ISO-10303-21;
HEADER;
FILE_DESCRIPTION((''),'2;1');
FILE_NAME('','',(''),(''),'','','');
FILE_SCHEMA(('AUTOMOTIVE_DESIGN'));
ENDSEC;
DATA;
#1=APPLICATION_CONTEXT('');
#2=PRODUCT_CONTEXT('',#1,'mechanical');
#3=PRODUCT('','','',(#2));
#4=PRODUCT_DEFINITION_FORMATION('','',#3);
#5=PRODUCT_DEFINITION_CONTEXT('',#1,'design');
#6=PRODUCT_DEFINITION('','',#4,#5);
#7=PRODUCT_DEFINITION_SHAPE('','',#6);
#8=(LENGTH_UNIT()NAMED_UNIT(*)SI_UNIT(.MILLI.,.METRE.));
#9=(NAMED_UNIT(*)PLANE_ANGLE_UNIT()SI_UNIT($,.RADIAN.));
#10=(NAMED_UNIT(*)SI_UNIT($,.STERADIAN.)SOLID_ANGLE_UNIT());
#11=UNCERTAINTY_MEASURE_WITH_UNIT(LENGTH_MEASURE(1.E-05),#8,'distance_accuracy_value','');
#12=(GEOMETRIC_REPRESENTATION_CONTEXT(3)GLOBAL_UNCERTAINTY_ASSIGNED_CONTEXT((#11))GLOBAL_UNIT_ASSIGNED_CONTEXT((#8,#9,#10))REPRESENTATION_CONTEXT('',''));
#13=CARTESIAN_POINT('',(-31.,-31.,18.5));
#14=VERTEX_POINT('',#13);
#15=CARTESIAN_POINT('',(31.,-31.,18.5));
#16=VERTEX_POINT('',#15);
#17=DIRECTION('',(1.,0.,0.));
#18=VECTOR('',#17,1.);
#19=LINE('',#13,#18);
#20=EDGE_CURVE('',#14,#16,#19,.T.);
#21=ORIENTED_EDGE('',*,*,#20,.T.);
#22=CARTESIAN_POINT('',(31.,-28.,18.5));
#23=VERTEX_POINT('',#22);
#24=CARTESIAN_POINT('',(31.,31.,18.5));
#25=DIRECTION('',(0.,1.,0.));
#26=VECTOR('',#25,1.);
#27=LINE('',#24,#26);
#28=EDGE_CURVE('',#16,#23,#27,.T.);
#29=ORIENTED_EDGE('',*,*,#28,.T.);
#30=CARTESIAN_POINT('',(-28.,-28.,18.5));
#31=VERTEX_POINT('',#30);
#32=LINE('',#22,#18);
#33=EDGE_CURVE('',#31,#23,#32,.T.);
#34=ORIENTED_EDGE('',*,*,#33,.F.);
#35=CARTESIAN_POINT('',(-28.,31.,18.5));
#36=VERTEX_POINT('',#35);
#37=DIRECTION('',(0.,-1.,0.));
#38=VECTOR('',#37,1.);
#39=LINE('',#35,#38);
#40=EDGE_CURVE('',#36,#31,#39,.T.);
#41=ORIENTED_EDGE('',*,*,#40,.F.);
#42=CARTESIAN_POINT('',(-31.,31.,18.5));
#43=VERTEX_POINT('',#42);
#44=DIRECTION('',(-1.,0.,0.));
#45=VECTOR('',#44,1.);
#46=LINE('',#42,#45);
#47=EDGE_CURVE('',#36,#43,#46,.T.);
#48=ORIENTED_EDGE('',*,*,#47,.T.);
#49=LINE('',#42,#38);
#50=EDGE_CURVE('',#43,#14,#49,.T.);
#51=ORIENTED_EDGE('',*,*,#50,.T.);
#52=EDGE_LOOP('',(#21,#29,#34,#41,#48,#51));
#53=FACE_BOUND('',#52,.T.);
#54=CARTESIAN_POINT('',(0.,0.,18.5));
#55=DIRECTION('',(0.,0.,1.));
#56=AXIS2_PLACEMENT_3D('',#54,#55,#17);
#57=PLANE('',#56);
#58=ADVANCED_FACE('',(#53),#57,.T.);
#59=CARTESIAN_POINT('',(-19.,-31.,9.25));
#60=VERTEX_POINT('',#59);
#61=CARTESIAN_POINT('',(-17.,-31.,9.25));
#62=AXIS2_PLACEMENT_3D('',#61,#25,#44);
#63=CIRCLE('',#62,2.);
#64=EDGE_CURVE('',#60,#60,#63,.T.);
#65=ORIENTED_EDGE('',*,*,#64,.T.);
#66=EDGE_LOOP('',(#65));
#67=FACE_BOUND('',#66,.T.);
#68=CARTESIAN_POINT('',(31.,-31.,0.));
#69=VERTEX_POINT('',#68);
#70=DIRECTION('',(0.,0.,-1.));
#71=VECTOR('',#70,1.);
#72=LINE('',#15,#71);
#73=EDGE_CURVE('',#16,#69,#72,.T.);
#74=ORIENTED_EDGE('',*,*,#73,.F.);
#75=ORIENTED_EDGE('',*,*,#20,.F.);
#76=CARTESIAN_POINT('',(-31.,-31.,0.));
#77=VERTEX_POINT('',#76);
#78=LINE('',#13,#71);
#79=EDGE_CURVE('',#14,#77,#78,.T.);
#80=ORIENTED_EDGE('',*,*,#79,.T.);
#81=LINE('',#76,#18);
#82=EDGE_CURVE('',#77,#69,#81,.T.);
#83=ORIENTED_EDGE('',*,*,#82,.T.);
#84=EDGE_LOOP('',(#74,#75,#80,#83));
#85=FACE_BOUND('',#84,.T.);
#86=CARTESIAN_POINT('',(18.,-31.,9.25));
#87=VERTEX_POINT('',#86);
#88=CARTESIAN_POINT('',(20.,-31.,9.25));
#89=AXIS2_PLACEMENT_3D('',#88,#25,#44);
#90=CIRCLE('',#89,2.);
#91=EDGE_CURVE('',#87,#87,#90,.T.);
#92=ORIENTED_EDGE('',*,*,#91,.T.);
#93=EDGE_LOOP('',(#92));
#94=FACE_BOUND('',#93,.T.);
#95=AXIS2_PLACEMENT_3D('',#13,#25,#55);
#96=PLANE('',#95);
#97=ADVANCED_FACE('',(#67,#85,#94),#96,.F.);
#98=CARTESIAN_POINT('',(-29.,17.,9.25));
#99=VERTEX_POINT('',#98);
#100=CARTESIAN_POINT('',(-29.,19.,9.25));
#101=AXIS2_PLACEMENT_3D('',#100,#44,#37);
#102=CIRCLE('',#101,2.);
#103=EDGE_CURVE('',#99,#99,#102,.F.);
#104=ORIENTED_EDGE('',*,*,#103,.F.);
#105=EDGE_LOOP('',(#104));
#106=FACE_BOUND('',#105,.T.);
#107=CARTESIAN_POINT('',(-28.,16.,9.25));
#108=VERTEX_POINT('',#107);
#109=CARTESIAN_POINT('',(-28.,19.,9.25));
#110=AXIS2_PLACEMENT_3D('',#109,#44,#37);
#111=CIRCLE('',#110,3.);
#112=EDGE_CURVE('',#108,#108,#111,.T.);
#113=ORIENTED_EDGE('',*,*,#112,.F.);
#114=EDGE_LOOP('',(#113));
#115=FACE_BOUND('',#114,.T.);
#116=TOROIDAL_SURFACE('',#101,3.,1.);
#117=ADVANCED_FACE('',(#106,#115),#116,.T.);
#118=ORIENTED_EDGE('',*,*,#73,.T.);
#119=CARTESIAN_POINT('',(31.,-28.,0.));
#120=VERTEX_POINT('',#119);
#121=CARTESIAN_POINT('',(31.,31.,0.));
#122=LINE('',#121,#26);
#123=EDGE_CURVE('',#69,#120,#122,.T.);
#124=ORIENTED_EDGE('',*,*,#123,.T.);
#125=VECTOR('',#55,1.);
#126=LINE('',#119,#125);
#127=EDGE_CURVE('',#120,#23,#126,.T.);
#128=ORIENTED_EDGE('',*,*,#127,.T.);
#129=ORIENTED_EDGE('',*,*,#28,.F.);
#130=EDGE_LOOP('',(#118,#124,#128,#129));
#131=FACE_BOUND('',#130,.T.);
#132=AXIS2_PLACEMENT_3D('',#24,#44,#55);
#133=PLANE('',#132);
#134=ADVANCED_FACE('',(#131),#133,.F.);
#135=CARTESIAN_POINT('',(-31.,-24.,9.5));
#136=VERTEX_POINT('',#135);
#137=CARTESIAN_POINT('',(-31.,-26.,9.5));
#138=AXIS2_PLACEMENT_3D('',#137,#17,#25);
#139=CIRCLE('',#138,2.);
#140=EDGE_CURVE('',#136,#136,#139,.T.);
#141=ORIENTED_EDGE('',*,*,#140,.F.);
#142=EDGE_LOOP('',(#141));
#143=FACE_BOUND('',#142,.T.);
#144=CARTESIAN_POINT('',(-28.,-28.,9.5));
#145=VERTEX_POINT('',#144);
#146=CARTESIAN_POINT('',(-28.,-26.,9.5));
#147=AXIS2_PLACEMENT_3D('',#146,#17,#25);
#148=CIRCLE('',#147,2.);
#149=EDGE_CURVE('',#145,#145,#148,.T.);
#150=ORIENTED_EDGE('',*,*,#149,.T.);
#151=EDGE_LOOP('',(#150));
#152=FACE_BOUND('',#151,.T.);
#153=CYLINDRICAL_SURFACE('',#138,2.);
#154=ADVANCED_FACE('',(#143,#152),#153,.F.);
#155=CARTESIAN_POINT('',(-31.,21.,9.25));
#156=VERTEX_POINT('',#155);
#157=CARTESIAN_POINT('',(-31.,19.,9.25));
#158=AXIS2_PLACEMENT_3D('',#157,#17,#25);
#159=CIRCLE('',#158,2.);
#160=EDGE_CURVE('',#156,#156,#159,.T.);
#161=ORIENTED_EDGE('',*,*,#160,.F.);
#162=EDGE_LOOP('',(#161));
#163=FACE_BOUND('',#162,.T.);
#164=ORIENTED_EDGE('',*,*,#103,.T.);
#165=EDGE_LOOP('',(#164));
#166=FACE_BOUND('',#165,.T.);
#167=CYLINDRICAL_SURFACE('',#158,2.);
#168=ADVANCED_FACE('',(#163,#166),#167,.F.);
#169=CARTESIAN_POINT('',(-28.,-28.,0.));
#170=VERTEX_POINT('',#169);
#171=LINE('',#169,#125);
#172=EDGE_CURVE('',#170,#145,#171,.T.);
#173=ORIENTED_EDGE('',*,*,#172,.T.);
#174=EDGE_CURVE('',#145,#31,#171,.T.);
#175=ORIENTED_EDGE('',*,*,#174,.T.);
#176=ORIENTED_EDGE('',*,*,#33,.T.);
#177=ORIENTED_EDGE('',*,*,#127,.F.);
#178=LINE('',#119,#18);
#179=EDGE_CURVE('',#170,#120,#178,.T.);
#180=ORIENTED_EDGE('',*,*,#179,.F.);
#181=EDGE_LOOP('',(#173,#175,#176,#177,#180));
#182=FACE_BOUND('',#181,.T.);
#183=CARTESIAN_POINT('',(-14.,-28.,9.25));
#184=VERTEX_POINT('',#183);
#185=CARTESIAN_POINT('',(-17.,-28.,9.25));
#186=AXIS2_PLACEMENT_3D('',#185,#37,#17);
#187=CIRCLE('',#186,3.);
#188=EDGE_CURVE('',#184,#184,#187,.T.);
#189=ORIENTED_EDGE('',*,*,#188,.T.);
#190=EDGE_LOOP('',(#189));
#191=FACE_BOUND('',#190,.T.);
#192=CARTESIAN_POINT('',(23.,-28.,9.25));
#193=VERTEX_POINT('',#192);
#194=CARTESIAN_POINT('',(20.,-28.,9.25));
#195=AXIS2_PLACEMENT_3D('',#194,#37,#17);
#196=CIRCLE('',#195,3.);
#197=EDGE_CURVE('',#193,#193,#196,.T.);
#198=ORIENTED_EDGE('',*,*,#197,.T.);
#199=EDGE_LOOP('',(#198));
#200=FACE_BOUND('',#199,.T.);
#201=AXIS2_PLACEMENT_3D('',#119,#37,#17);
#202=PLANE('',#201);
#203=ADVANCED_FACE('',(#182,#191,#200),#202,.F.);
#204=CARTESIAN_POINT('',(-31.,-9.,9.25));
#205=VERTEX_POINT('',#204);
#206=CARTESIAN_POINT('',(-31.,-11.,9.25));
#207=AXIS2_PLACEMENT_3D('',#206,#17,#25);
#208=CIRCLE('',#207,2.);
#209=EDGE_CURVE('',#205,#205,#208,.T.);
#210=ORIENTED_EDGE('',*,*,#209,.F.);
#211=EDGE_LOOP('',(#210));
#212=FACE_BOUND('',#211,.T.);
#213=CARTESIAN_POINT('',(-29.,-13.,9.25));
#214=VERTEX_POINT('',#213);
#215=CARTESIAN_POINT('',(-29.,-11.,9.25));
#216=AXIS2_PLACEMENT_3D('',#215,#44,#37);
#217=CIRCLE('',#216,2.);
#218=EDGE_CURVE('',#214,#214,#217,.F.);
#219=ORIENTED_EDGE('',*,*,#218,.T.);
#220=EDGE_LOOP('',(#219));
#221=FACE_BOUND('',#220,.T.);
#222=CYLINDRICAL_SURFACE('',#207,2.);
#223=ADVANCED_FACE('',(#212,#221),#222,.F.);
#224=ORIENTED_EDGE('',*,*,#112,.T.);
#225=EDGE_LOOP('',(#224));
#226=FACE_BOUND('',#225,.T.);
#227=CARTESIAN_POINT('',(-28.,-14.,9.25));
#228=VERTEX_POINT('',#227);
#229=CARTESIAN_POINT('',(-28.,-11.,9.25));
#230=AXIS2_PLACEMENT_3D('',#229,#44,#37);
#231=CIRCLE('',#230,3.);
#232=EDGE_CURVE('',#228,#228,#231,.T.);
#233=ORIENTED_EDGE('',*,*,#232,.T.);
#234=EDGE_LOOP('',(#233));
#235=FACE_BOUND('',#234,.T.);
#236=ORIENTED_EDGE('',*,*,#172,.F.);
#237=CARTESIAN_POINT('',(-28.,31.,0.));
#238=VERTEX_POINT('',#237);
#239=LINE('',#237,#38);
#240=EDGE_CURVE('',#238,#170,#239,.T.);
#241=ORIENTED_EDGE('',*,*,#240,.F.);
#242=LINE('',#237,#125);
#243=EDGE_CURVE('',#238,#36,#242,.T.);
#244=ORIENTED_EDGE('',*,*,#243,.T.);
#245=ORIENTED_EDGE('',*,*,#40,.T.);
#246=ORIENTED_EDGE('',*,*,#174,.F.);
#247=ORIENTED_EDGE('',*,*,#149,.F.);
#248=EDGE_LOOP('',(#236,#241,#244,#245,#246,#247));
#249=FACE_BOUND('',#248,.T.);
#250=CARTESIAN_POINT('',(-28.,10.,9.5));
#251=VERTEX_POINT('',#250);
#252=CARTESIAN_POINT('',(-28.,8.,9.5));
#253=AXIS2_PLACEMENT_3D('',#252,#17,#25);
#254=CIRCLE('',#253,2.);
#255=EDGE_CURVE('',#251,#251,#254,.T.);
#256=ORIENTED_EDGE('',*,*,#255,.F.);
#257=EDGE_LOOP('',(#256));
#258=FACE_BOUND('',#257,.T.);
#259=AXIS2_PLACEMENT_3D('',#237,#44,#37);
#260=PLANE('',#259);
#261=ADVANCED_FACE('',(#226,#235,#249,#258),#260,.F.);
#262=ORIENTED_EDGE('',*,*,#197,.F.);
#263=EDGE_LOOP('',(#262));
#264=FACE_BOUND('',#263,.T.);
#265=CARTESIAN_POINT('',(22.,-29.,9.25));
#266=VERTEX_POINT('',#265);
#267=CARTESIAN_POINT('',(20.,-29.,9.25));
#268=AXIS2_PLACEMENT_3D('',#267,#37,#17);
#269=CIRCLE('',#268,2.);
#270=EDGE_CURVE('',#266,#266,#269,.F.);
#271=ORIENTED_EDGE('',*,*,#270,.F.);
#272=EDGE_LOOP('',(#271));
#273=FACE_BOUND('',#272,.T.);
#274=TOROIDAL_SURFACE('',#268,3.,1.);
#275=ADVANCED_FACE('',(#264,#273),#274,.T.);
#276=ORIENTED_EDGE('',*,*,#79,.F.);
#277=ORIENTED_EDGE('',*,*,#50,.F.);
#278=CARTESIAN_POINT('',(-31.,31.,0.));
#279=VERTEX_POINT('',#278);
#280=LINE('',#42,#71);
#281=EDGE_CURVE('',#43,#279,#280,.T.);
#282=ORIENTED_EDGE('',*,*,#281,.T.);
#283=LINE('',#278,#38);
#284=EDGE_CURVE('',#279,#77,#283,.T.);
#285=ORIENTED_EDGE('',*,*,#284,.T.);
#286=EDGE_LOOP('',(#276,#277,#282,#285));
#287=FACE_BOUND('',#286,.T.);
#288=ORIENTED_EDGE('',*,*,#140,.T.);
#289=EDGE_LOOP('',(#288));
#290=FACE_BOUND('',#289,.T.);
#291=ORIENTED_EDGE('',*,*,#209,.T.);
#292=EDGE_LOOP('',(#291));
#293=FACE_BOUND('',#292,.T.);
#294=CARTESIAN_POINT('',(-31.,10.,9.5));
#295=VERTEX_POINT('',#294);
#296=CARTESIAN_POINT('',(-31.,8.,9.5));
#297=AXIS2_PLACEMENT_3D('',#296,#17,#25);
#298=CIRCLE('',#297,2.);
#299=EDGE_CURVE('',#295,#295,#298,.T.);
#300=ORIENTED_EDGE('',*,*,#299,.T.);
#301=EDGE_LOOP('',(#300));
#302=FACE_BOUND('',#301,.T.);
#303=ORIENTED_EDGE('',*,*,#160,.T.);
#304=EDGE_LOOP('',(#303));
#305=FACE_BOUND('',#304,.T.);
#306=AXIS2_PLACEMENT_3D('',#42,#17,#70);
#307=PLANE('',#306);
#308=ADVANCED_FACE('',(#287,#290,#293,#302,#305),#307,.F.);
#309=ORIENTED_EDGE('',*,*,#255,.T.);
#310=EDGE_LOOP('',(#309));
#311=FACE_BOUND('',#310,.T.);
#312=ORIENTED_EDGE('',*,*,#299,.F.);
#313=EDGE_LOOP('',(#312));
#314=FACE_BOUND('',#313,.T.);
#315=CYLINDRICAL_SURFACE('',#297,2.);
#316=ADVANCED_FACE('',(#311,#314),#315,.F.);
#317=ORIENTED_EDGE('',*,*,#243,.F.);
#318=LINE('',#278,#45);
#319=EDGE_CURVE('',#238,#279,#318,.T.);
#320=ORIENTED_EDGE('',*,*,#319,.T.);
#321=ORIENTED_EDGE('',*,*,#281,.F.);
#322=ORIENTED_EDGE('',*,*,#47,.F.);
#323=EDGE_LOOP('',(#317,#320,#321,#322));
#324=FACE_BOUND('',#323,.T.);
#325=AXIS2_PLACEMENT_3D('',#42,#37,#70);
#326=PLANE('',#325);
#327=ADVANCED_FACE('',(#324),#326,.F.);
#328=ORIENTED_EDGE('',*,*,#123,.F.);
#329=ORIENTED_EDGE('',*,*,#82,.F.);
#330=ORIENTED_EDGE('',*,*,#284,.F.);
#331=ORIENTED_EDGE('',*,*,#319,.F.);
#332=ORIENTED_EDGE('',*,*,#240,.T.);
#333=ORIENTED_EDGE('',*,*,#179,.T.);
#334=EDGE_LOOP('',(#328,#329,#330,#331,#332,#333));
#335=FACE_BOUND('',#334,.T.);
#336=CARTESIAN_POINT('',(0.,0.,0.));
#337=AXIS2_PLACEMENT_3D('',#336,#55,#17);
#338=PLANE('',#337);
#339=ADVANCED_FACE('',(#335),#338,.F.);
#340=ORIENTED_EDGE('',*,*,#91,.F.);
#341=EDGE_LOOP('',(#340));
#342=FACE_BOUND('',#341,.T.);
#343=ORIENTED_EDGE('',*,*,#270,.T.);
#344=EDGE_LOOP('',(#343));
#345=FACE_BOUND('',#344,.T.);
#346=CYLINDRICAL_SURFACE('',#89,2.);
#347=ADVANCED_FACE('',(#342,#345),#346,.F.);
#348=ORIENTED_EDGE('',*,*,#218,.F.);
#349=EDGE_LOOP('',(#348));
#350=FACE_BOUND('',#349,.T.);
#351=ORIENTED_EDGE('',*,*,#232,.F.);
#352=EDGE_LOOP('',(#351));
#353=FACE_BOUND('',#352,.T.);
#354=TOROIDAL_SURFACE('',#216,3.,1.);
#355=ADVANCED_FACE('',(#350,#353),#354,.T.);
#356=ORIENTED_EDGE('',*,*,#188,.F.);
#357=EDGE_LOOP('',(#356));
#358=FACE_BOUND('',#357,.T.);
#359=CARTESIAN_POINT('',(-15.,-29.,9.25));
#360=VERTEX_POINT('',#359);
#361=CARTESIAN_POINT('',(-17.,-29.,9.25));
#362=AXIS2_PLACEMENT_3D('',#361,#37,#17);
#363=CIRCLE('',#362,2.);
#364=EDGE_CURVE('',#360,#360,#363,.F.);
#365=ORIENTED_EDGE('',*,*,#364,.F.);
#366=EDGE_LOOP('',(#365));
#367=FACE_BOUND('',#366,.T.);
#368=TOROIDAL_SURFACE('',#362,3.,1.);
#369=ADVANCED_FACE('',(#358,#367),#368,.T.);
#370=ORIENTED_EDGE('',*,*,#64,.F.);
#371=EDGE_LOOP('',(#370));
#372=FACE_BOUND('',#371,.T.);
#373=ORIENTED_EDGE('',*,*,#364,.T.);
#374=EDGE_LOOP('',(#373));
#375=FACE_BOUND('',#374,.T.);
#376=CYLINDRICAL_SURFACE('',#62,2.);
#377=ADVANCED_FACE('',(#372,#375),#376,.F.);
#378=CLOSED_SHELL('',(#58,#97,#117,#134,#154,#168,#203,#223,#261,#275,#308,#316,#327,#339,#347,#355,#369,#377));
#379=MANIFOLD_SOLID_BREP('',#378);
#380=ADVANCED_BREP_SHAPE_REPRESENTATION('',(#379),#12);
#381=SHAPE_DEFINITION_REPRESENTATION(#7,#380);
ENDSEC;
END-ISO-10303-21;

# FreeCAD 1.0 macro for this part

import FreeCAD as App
import Part
import Sketcher

V = App.Vector


def edges_at(feature, points):
    """Names of the edges that pass closest to the given points."""
    edges = feature.Shape.Edges
    near = lambda p: min(range(len(edges)), key=lambda i: edges[i].distToShape(Part.Vertex(*p))[0])
    return sorted({f"Edge{near(p) + 1}" for p in points})

doc = App.newDocument("Part")
body = doc.addObject("PartDesign::Body", "Body")

sketch1 = doc.addObject("Sketcher::SketchObject", "Sketch")
body.addObject(sketch1)
sketch1.AttachmentSupport = (doc.XY_Plane, [""])
sketch1.MapMode = "FlatFace"
sketch1.addGeometry([
    Part.LineSegment(V(-31, 31, 0), V(-31, -31, 0)),
    Part.LineSegment(V(-31, -31, 0), V(31, -31, 0)),
    Part.LineSegment(V(31, -31, 0), V(31, 31, 0)),
    Part.LineSegment(V(31, 31, 0), V(-31, 31, 0)),
], False)
sketch1.addConstraint([
    Sketcher.Constraint("Coincident", 0, 2, 1, 1),
    Sketcher.Constraint("Coincident", 1, 2, 2, 1),
    Sketcher.Constraint("Coincident", 2, 2, 3, 1),
    Sketcher.Constraint("Coincident", 3, 2, 0, 1),
    Sketcher.Constraint("Vertical", 0),
    Sketcher.Constraint("Horizontal", 1),
    Sketcher.Constraint("Vertical", 2),
    Sketcher.Constraint("Horizontal", 3),
    Sketcher.Constraint("Symmetric", 0, 2, 2, 2, -1, 1),
    Sketcher.Constraint("Equal", 3, 0),
    Sketcher.Constraint("DistanceX", 1, 1, 1, 2, 62.0),
])
pad1 = doc.addObject("PartDesign::Pad", "Pad")
body.addObject(pad1)
pad1.Profile = sketch1
pad1.Length = 18.5

sketch2 = doc.addObject("Sketcher::SketchObject", "Sketch001")
body.addObject(sketch2)
sketch2.AttachmentSupport = (doc.XY_Plane, [""])
sketch2.MapMode = "FlatFace"
sketch2.AttachmentOffset = App.Placement(V(0, 0, 18.5), App.Rotation())
sketch2.addGeometry([
    Part.LineSegment(V(-28, 31, 0), V(-28, -28, 0)),
    Part.LineSegment(V(-28, -28, 0), V(31, -28, 0)),
    Part.LineSegment(V(31, -28, 0), V(31, 31, 0)),
    Part.LineSegment(V(31, 31, 0), V(-28, 31, 0)),
], False)
sketch2.addConstraint([
    Sketcher.Constraint("Coincident", 0, 2, 1, 1),
    Sketcher.Constraint("Coincident", 1, 2, 2, 1),
    Sketcher.Constraint("Coincident", 2, 2, 3, 1),
    Sketcher.Constraint("Coincident", 3, 2, 0, 1),
    Sketcher.Constraint("Vertical", 0),
    Sketcher.Constraint("Horizontal", 1),
    Sketcher.Constraint("Vertical", 2),
    Sketcher.Constraint("Horizontal", 3),
    Sketcher.Constraint("Equal", 3, 0),
    Sketcher.Constraint("DistanceX", 1, 1, 1, 2, 59.0),
    Sketcher.Constraint("DistanceX", 0, 2, -1, 1, 28.0),
    Sketcher.Constraint("DistanceY", 0, 2, -1, 1, 28.0),
])
pocket1 = doc.addObject("PartDesign::Pocket", "Pocket")
body.addObject(pocket1)
pocket1.Profile = sketch2
pocket1.Length = 18.5

sketch3 = doc.addObject("Sketcher::SketchObject", "Sketch002")
body.addObject(sketch3)
sketch3.AttachmentSupport = (doc.XZ_Plane, [""])
sketch3.MapMode = "FlatFace"
sketch3.AttachmentOffset = App.Placement(V(0, 0, 28), App.Rotation())
sketch3.addGeometry(Part.Circle(V(-17, 9.2, 0), V(0, 0, 1), 2), False)
sketch3.addConstraint([
    Sketcher.Constraint("Diameter", 0, 4.0),
    Sketcher.Constraint("DistanceX", 0, 3, -1, 1, 17.0),
    Sketcher.Constraint("DistanceY", -1, 1, 0, 3, 9.25),
])
pocket2 = doc.addObject("PartDesign::Pocket", "Pocket001")
body.addObject(pocket2)
pocket2.Profile = sketch3
pocket2.Length = 3
pocket2.Reversed = True

sketch4 = doc.addObject("Sketcher::SketchObject", "Sketch003")
body.addObject(sketch4)
sketch4.AttachmentSupport = (doc.XZ_Plane, [""])
sketch4.MapMode = "FlatFace"
sketch4.AttachmentOffset = App.Placement(V(0, 0, 28), App.Rotation())
sketch4.addGeometry(Part.Circle(V(20, 9.2, 0), V(0, 0, 1), 2), False)
sketch4.addConstraint([
    Sketcher.Constraint("Diameter", 0, 4.0),
    Sketcher.Constraint("DistanceX", -1, 1, 0, 3, 20.0),
    Sketcher.Constraint("DistanceY", -1, 1, 0, 3, 9.25),
])
pocket3 = doc.addObject("PartDesign::Pocket", "Pocket002")
body.addObject(pocket3)
pocket3.Profile = sketch4
pocket3.Length = 3
pocket3.Reversed = True
doc.recompute()

fillet = doc.addObject("PartDesign::Fillet", "Fillet")
body.addObject(fillet)
fillet.Base = (pocket3, edges_at(pocket3, [(18, -28, 9.25)]))
fillet.Radius = 1
doc.recompute()

fillet2 = doc.addObject("PartDesign::Fillet", "Fillet001")
body.addObject(fillet2)
fillet2.Base = (fillet, edges_at(fillet, [(-19, -28, 9.25)]))
fillet2.Radius = 1

sketch5 = doc.addObject("Sketcher::SketchObject", "Sketch004")
body.addObject(sketch5)
sketch5.AttachmentSupport = (doc.YZ_Plane, [""])
sketch5.MapMode = "FlatFace"
sketch5.AttachmentOffset = App.Placement(V(0, 0, -28), App.Rotation())
sketch5.addGeometry(Part.Circle(V(-11, 9.2, 0), V(0, 0, 1), 2), False)
sketch5.addConstraint([
    Sketcher.Constraint("Diameter", 0, 4.0),
    Sketcher.Constraint("DistanceX", 0, 3, -1, 1, 11.0),
    Sketcher.Constraint("DistanceY", -1, 1, 0, 3, 9.25),
])
pocket4 = doc.addObject("PartDesign::Pocket", "Pocket003")
body.addObject(pocket4)
pocket4.Profile = sketch5
pocket4.Length = 3

sketch6 = doc.addObject("Sketcher::SketchObject", "Sketch005")
body.addObject(sketch6)
sketch6.AttachmentSupport = (doc.YZ_Plane, [""])
sketch6.MapMode = "FlatFace"
sketch6.AttachmentOffset = App.Placement(V(0, 0, -28), App.Rotation())
sketch6.addGeometry(Part.Circle(V(19, 9.2, 0), V(0, 0, 1), 2), False)
sketch6.addConstraint([
    Sketcher.Constraint("Diameter", 0, 4.0),
    Sketcher.Constraint("DistanceX", -1, 1, 0, 3, 19.0),
    Sketcher.Constraint("DistanceY", -1, 1, 0, 3, 9.25),
])
pocket5 = doc.addObject("PartDesign::Pocket", "Pocket004")
body.addObject(pocket5)
pocket5.Profile = sketch6
pocket5.Length = 3
doc.recompute()

fillet3 = doc.addObject("PartDesign::Fillet", "Fillet002")
body.addObject(fillet3)
fillet3.Base = (pocket5, edges_at(pocket5, [(-28, 19, 11.25)]))
fillet3.Radius = 1
doc.recompute()

fillet4 = doc.addObject("PartDesign::Fillet", "Fillet003")
body.addObject(fillet4)
fillet4.Base = (fillet3, edges_at(fillet3, [(-28, -11, 11.25)]))
fillet4.Radius = 1

sketch7 = doc.addObject("Sketcher::SketchObject", "Sketch006")
body.addObject(sketch7)
sketch7.AttachmentSupport = (doc.YZ_Plane, [""])
sketch7.MapMode = "FlatFace"
sketch7.AttachmentOffset = App.Placement(V(0, 0, -28), App.Rotation())
sketch7.addGeometry(Part.Circle(V(-26, 9.5, 0), V(0, 0, 1), 2), False)
sketch7.addConstraint([
    Sketcher.Constraint("Diameter", 0, 4.0),
    Sketcher.Constraint("DistanceX", 0, 3, -1, 1, 26.0),
    Sketcher.Constraint("DistanceY", -1, 1, 0, 3, 9.5),
])
pocket6 = doc.addObject("PartDesign::Pocket", "Pocket005")
body.addObject(pocket6)
pocket6.Profile = sketch7
pocket6.Length = 3

sketch8 = doc.addObject("Sketcher::SketchObject", "Sketch007")
body.addObject(sketch8)
sketch8.AttachmentSupport = (doc.YZ_Plane, [""])
sketch8.MapMode = "FlatFace"
sketch8.AttachmentOffset = App.Placement(V(0, 0, -28), App.Rotation())
sketch8.addGeometry(Part.Circle(V(8, 9.5, 0), V(0, 0, 1), 2), False)
sketch8.addConstraint([
    Sketcher.Constraint("Diameter", 0, 4.0),
    Sketcher.Constraint("DistanceX", -1, 1, 0, 3, 8.0),
    Sketcher.Constraint("DistanceY", -1, 1, 0, 3, 9.5),
])
pocket7 = doc.addObject("PartDesign::Pocket", "Pocket006")
body.addObject(pocket7)
pocket7.Profile = sketch8
pocket7.Length = 3

doc.recompute()
